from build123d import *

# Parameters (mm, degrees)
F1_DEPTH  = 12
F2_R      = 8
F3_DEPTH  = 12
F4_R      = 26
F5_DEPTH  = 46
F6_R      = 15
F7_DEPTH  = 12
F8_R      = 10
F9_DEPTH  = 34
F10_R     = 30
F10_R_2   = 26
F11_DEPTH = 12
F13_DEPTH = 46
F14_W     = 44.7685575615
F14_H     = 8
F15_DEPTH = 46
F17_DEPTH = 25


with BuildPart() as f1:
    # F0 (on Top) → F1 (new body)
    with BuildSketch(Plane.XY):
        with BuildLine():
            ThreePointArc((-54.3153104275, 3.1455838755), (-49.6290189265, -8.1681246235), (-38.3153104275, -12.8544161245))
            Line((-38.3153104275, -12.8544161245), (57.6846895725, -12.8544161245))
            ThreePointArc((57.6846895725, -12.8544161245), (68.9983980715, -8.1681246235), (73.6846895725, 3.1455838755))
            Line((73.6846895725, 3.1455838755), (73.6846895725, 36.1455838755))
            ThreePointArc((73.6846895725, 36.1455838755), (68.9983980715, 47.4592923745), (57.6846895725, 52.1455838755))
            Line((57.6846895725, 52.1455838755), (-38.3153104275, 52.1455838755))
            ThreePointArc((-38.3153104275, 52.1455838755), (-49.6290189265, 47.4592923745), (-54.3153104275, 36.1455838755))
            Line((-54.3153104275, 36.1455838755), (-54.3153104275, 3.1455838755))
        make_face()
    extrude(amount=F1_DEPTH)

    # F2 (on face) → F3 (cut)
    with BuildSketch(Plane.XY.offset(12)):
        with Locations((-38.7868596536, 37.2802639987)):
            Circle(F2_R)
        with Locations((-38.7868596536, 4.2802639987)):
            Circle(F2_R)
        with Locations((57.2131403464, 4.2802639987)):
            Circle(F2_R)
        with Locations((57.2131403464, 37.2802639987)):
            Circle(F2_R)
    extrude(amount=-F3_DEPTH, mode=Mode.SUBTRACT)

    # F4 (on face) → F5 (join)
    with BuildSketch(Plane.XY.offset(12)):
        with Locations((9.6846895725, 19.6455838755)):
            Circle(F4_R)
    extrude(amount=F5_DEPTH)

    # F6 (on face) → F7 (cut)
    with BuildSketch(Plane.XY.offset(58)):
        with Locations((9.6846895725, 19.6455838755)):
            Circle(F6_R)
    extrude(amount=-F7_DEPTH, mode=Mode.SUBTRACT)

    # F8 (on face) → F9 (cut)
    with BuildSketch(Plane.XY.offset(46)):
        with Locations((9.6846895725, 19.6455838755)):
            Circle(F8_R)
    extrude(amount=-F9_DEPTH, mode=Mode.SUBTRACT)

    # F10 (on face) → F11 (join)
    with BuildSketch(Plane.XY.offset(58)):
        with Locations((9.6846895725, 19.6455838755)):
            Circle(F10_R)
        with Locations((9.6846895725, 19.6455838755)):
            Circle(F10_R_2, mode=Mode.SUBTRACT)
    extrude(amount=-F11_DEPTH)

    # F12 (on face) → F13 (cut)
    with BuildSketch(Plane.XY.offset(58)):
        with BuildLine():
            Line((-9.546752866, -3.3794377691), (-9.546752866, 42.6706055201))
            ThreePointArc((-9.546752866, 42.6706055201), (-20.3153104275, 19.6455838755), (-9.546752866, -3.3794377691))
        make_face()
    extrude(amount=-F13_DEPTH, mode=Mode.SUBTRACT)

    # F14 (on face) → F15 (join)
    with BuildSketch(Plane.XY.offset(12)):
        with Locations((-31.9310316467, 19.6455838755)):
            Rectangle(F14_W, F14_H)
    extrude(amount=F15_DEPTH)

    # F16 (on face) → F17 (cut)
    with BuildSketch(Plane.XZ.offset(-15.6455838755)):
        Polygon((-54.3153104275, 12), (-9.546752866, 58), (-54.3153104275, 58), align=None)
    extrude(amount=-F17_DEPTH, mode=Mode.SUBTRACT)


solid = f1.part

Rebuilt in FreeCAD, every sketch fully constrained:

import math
import FreeCAD as App
import Part
import Sketcher
from FreeCAD import Vector
Q = App.Units.Quantity

doc = App.newDocument("Part")
body = doc.addObject("PartDesign::Body", "Body")

# Sketch on XY plane
sketch1 = body.newObject("Sketcher::SketchObject", "Sketch")
sketch1.AttachmentSupport = (doc.getObject("XY_Plane"), [""])
sketch1.MapMode = "FlatFace"
sketch1.addGeometry([
    Part.ArcOfCircle(Part.Circle(Vector(-38, 3, 0), Vector(0, 0, 1), 16), math.radians(180), math.radians(270)),  # 0
    Part.LineSegment(Vector(-38, -13, 0), Vector(58, -13, 0)),  # 1
    Part.ArcOfCircle(Part.Circle(Vector(58, 3, 0), Vector(0, 0, 1), 16), math.radians(-90), math.radians(0)),  # 2
    Part.LineSegment(Vector(74, 3, 0), Vector(74, 36, 0)),  # 3
    Part.ArcOfCircle(Part.Circle(Vector(58, 36, 0), Vector(0, 0, 1), 16), math.radians(0), math.radians(90)),  # 4
    Part.LineSegment(Vector(58, 52, 0), Vector(-38, 52, 0)),  # 5
    Part.ArcOfCircle(Part.Circle(Vector(-38, 36, 0), Vector(0, 0, 1), 16), math.radians(90), math.radians(180)),  # 6
    Part.LineSegment(Vector(-54, 36, 0), Vector(-54, 3, 0)),  # 7
], False)
sketch1.addConstraint([
    Sketcher.Constraint("Tangent", 0, 2, 1, 1),
    Sketcher.Constraint("Tangent", 1, 2, 2, 1),
    Sketcher.Constraint("Tangent", 2, 2, 3, 1),
    Sketcher.Constraint("Tangent", 3, 2, 4, 1),
    Sketcher.Constraint("Tangent", 4, 2, 5, 1),
    Sketcher.Constraint("Tangent", 5, 2, 6, 1),
    Sketcher.Constraint("Tangent", 6, 2, 7, 1),
    Sketcher.Constraint("Tangent", 7, 2, 0, 1),
    Sketcher.Constraint("Horizontal", 1),
    Sketcher.Constraint("Vertical", 3),
    Sketcher.Constraint("Horizontal", 5),
    Sketcher.Constraint("Vertical", 7),
    Sketcher.Constraint("Equal", 0, 2),
    Sketcher.Constraint("Equal", 2, 4),
    Sketcher.Constraint("Equal", 4, 6),
    Sketcher.Constraint("Radius", 0, Q("16 mm")),
    Sketcher.Constraint("DistanceX", 1, 1, 1, 2, Q("96 mm")),
    Sketcher.Constraint("DistanceY", 3, 1, 3, 2, Q("33 mm")),
    Sketcher.Constraint("DistanceX", 0, 3, -1, 1, Q("38.31531 mm")),
    Sketcher.Constraint("DistanceY", -1, 1, 0, 3, Q("3.145584 mm")),
])
pad1 = body.newObject("PartDesign::Pad", "Pad")
pad1.Profile = sketch1
pad1.Length = 12

# Sketch on XY plane
sketch2 = body.newObject("Sketcher::SketchObject", "Sketch001")
sketch2.AttachmentSupport = (doc.getObject("XY_Plane"), [""])
sketch2.MapMode = "FlatFace"
sketch2.AttachmentOffset = App.Placement(Vector(0, 0, 12), App.Rotation())
sketch2.addGeometry([
    Part.Circle(Vector(-39, 37, 0), Vector(0, 0, 1), 8),
    Part.Circle(Vector(-39, 4, 0), Vector(0, 0, 1), 8),
    Part.Circle(Vector(57, 4, 0), Vector(0, 0, 1), 8),
    Part.Circle(Vector(57, 37, 0), Vector(0, 0, 1), 8),
], False)
sketch2.addConstraint([
    Sketcher.Constraint("Equal", 0, 1),
    Sketcher.Constraint("Equal", 1, 2),
    Sketcher.Constraint("Equal", 2, 3),
    Sketcher.Constraint("Horizontal", 1, 3, 2, 3),
    Sketcher.Constraint("Horizontal", 0, 3, 3, 3),
    Sketcher.Constraint("Vertical", 0, 3, 1, 3),
    Sketcher.Constraint("Vertical", 2, 3, 3, 3),
    Sketcher.Constraint("Diameter", 0, Q("16 mm")),
    Sketcher.Constraint("DistanceY", 1, 3, 0, 3, Q("33 mm")),
    Sketcher.Constraint("DistanceX", 1, 3, 2, 3, Q("96 mm")),
    Sketcher.Constraint("DistanceX", 0, 3, -1, 1, Q("38.78686 mm")),
    Sketcher.Constraint("DistanceY", -1, 1, 0, 3, Q("37.280264 mm")),
])
pocket1 = body.newObject("PartDesign::Pocket", "Pocket")
pocket1.Profile = sketch2
pocket1.Length = 12

# Sketch on XY plane
sketch3 = body.newObject("Sketcher::SketchObject", "Sketch002")
sketch3.AttachmentSupport = (doc.getObject("XY_Plane"), [""])
sketch3.MapMode = "FlatFace"
sketch3.AttachmentOffset = App.Placement(Vector(0, 0, 12), App.Rotation())
sketch3.addGeometry(Part.Circle(Vector(10, 20, 0), Vector(0, 0, 1), 26), False)
sketch3.addConstraint([
    Sketcher.Constraint("Diameter", 0, Q("52 mm")),
    Sketcher.Constraint("DistanceX", -1, 1, 0, 3, Q("9.68469 mm")),
    Sketcher.Constraint("DistanceY", -1, 1, 0, 3, Q("19.645584 mm")),
])
pad2 = body.newObject("PartDesign::Pad", "Pad001")
pad2.Profile = sketch3
pad2.Length = 46

# Sketch on XY plane
sketch4 = body.newObject("Sketcher::SketchObject", "Sketch003")
sketch4.AttachmentSupport = (doc.getObject("XY_Plane"), [""])
sketch4.MapMode = "FlatFace"
sketch4.AttachmentOffset = App.Placement(Vector(0, 0, 58), App.Rotation())
sketch4.addGeometry(Part.Circle(Vector(10, 20, 0), Vector(0, 0, 1), 15), False)
sketch4.addConstraint([
    Sketcher.Constraint("Diameter", 0, Q("30 mm")),
    Sketcher.Constraint("DistanceX", -1, 1, 0, 3, Q("9.68469 mm")),
    Sketcher.Constraint("DistanceY", -1, 1, 0, 3, Q("19.645584 mm")),
])
pocket2 = body.newObject("PartDesign::Pocket", "Pocket001")
pocket2.Profile = sketch4
pocket2.Length = 12

# Sketch on XY plane
sketch5 = body.newObject("Sketcher::SketchObject", "Sketch004")
sketch5.AttachmentSupport = (doc.getObject("XY_Plane"), [""])
sketch5.MapMode = "FlatFace"
sketch5.AttachmentOffset = App.Placement(Vector(0, 0, 46), App.Rotation())
sketch5.addGeometry(Part.Circle(Vector(10, 20, 0), Vector(0, 0, 1), 10), False)
sketch5.addConstraint([
    Sketcher.Constraint("Diameter", 0, Q("20 mm")),
    Sketcher.Constraint("DistanceX", -1, 1, 0, 3, Q("9.68469 mm")),
    Sketcher.Constraint("DistanceY", -1, 1, 0, 3, Q("19.645584 mm")),
])
pocket3 = body.newObject("PartDesign::Pocket", "Pocket002")
pocket3.Profile = sketch5
pocket3.Length = 34

# Sketch on XY plane
sketch6 = body.newObject("Sketcher::SketchObject", "Sketch005")
sketch6.AttachmentSupport = (doc.getObject("XY_Plane"), [""])
sketch6.MapMode = "FlatFace"
sketch6.AttachmentOffset = App.Placement(Vector(0, 0, 58), App.Rotation())
sketch6.addGeometry([
    Part.Circle(Vector(10, 20, 0), Vector(0, 0, 1), 30),
    Part.Circle(Vector(10, 20, 0), Vector(0, 0, 1), 26),
], False)
sketch6.addConstraint([
    Sketcher.Constraint("Coincident", 1, 3, 0, 3),
    Sketcher.Constraint("Diameter", 0, Q("60 mm")),
    Sketcher.Constraint("Diameter", 1, Q("52 mm")),
    Sketcher.Constraint("DistanceX", -1, 1, 0, 3, Q("9.68469 mm")),
    Sketcher.Constraint("DistanceY", -1, 1, 0, 3, Q("19.645584 mm")),
])
pad3 = body.newObject("PartDesign::Pad", "Pad002")
pad3.Profile = sketch6
pad3.Length = 12
pad3.Reversed = True

# Sketch on XY plane
sketch7 = body.newObject("Sketcher::SketchObject", "Sketch006")
sketch7.AttachmentSupport = (doc.getObject("XY_Plane"), [""])
sketch7.MapMode = "FlatFace"
sketch7.AttachmentOffset = App.Placement(Vector(0, 0, 58), App.Rotation())
sketch7.addGeometry([
    Part.LineSegment(Vector(-10, -3, 0), Vector(-10, 43, 0)),
    Part.ArcOfCircle(Part.Circle(Vector(10, 20, 0), Vector(0, 0, 1), 30), math.radians(130), math.radians(230)),
], False)
sketch7.addConstraint([
    Sketcher.Constraint("Coincident", 0, 1, 1, 2),
    Sketcher.Constraint("Coincident", 1, 1, 0, 2),
    Sketcher.Constraint("Vertical", 0),
    Sketcher.Constraint("Radius", 1, Q("30 mm")),
    Sketcher.Constraint("DistanceY", 0, 1, 0, 2, Q("46.050043 mm")),
    Sketcher.Constraint("DistanceX", -1, 1, 1, 3, Q("9.68469 mm")),
    Sketcher.Constraint("DistanceY", -1, 1, 1, 3, Q("19.645584 mm")),
])
pocket4 = body.newObject("PartDesign::Pocket", "Pocket003")
pocket4.Profile = sketch7
pocket4.Length = 46

# Sketch on XY plane
sketch8 = body.newObject("Sketcher::SketchObject", "Sketch007")
sketch8.AttachmentSupport = (doc.getObject("XY_Plane"), [""])
sketch8.MapMode = "FlatFace"
sketch8.AttachmentOffset = App.Placement(Vector(0, 0, 12), App.Rotation())
sketch8.addGeometry([
    Part.LineSegment(Vector(-54, 24, 0), Vector(-54, 16, 0)),
    Part.LineSegment(Vector(-54, 16, 0), Vector(-10, 16, 0)),
    Part.LineSegment(Vector(-10, 16, 0), Vector(-10, 24, 0)),
    Part.LineSegment(Vector(-10, 24, 0), Vector(-54, 24, 0)),
], False)
sketch8.addConstraint([
    Sketcher.Constraint("Coincident", 0, 2, 1, 1),
    Sketcher.Constraint("Coincident", 1, 2, 2, 1),
    Sketcher.Constraint("Coincident", 2, 2, 3, 1),
    Sketcher.Constraint("Coincident", 3, 2, 0, 1),
    Sketcher.Constraint("Vertical", 0),
    Sketcher.Constraint("Horizontal", 1),
    Sketcher.Constraint("Vertical", 2),
    Sketcher.Constraint("Horizontal", 3),
    Sketcher.Constraint("DistanceY", 0, 2, 0, 1, Q("8 mm")),
    Sketcher.Constraint("DistanceX", 1, 1, 1, 2, Q("44.768558 mm")),
    Sketcher.Constraint("DistanceX", 0, 2, -1, 1, Q("54.31531 mm")),
    Sketcher.Constraint("DistanceY", -1, 1, 0, 2, Q("15.645584 mm")),
])
pad4 = body.newObject("PartDesign::Pad", "Pad003")
pad4.Profile = sketch8
pad4.Length = 46

# Sketch on XZ plane
sketch9 = body.newObject("Sketcher::SketchObject", "Sketch008")
sketch9.AttachmentSupport = (doc.getObject("XZ_Plane"), [""])
sketch9.MapMode = "FlatFace"
sketch9.AttachmentOffset = App.Placement(Vector(0, 0, -15.645584), App.Rotation())
sketch9.addGeometry([
    Part.LineSegment(Vector(-54, 12, 0), Vector(-10, 58, 0)),
    Part.LineSegment(Vector(-10, 58, 0), Vector(-54, 58, 0)),
    Part.LineSegment(Vector(-54, 58, 0), Vector(-54, 12, 0)),
], False)
sketch9.addConstraint([
    Sketcher.Constraint("Coincident", 0, 2, 1, 1),
    Sketcher.Constraint("Coincident", 1, 2, 2, 1),
    Sketcher.Constraint("Coincident", 2, 2, 0, 1),
    Sketcher.Constraint("Horizontal", 1),
    Sketcher.Constraint("Vertical", 2),
    Sketcher.Constraint("DistanceY", 2, 2, 2, 1, Q("46 mm")),
    Sketcher.Constraint("DistanceY", -1, 1, 0, 2, Q("58 mm")),
    Sketcher.Constraint("Distance", 0, Q("64.188969 mm")),
    Sketcher.Constraint("DistanceX", 1, 2, -1, 1, Q("54.31531 mm")),
])
pocket5 = body.newObject("PartDesign::Pocket", "Pocket004")
pocket5.Profile = sketch9
pocket5.Length = 25

doc.recompute()
